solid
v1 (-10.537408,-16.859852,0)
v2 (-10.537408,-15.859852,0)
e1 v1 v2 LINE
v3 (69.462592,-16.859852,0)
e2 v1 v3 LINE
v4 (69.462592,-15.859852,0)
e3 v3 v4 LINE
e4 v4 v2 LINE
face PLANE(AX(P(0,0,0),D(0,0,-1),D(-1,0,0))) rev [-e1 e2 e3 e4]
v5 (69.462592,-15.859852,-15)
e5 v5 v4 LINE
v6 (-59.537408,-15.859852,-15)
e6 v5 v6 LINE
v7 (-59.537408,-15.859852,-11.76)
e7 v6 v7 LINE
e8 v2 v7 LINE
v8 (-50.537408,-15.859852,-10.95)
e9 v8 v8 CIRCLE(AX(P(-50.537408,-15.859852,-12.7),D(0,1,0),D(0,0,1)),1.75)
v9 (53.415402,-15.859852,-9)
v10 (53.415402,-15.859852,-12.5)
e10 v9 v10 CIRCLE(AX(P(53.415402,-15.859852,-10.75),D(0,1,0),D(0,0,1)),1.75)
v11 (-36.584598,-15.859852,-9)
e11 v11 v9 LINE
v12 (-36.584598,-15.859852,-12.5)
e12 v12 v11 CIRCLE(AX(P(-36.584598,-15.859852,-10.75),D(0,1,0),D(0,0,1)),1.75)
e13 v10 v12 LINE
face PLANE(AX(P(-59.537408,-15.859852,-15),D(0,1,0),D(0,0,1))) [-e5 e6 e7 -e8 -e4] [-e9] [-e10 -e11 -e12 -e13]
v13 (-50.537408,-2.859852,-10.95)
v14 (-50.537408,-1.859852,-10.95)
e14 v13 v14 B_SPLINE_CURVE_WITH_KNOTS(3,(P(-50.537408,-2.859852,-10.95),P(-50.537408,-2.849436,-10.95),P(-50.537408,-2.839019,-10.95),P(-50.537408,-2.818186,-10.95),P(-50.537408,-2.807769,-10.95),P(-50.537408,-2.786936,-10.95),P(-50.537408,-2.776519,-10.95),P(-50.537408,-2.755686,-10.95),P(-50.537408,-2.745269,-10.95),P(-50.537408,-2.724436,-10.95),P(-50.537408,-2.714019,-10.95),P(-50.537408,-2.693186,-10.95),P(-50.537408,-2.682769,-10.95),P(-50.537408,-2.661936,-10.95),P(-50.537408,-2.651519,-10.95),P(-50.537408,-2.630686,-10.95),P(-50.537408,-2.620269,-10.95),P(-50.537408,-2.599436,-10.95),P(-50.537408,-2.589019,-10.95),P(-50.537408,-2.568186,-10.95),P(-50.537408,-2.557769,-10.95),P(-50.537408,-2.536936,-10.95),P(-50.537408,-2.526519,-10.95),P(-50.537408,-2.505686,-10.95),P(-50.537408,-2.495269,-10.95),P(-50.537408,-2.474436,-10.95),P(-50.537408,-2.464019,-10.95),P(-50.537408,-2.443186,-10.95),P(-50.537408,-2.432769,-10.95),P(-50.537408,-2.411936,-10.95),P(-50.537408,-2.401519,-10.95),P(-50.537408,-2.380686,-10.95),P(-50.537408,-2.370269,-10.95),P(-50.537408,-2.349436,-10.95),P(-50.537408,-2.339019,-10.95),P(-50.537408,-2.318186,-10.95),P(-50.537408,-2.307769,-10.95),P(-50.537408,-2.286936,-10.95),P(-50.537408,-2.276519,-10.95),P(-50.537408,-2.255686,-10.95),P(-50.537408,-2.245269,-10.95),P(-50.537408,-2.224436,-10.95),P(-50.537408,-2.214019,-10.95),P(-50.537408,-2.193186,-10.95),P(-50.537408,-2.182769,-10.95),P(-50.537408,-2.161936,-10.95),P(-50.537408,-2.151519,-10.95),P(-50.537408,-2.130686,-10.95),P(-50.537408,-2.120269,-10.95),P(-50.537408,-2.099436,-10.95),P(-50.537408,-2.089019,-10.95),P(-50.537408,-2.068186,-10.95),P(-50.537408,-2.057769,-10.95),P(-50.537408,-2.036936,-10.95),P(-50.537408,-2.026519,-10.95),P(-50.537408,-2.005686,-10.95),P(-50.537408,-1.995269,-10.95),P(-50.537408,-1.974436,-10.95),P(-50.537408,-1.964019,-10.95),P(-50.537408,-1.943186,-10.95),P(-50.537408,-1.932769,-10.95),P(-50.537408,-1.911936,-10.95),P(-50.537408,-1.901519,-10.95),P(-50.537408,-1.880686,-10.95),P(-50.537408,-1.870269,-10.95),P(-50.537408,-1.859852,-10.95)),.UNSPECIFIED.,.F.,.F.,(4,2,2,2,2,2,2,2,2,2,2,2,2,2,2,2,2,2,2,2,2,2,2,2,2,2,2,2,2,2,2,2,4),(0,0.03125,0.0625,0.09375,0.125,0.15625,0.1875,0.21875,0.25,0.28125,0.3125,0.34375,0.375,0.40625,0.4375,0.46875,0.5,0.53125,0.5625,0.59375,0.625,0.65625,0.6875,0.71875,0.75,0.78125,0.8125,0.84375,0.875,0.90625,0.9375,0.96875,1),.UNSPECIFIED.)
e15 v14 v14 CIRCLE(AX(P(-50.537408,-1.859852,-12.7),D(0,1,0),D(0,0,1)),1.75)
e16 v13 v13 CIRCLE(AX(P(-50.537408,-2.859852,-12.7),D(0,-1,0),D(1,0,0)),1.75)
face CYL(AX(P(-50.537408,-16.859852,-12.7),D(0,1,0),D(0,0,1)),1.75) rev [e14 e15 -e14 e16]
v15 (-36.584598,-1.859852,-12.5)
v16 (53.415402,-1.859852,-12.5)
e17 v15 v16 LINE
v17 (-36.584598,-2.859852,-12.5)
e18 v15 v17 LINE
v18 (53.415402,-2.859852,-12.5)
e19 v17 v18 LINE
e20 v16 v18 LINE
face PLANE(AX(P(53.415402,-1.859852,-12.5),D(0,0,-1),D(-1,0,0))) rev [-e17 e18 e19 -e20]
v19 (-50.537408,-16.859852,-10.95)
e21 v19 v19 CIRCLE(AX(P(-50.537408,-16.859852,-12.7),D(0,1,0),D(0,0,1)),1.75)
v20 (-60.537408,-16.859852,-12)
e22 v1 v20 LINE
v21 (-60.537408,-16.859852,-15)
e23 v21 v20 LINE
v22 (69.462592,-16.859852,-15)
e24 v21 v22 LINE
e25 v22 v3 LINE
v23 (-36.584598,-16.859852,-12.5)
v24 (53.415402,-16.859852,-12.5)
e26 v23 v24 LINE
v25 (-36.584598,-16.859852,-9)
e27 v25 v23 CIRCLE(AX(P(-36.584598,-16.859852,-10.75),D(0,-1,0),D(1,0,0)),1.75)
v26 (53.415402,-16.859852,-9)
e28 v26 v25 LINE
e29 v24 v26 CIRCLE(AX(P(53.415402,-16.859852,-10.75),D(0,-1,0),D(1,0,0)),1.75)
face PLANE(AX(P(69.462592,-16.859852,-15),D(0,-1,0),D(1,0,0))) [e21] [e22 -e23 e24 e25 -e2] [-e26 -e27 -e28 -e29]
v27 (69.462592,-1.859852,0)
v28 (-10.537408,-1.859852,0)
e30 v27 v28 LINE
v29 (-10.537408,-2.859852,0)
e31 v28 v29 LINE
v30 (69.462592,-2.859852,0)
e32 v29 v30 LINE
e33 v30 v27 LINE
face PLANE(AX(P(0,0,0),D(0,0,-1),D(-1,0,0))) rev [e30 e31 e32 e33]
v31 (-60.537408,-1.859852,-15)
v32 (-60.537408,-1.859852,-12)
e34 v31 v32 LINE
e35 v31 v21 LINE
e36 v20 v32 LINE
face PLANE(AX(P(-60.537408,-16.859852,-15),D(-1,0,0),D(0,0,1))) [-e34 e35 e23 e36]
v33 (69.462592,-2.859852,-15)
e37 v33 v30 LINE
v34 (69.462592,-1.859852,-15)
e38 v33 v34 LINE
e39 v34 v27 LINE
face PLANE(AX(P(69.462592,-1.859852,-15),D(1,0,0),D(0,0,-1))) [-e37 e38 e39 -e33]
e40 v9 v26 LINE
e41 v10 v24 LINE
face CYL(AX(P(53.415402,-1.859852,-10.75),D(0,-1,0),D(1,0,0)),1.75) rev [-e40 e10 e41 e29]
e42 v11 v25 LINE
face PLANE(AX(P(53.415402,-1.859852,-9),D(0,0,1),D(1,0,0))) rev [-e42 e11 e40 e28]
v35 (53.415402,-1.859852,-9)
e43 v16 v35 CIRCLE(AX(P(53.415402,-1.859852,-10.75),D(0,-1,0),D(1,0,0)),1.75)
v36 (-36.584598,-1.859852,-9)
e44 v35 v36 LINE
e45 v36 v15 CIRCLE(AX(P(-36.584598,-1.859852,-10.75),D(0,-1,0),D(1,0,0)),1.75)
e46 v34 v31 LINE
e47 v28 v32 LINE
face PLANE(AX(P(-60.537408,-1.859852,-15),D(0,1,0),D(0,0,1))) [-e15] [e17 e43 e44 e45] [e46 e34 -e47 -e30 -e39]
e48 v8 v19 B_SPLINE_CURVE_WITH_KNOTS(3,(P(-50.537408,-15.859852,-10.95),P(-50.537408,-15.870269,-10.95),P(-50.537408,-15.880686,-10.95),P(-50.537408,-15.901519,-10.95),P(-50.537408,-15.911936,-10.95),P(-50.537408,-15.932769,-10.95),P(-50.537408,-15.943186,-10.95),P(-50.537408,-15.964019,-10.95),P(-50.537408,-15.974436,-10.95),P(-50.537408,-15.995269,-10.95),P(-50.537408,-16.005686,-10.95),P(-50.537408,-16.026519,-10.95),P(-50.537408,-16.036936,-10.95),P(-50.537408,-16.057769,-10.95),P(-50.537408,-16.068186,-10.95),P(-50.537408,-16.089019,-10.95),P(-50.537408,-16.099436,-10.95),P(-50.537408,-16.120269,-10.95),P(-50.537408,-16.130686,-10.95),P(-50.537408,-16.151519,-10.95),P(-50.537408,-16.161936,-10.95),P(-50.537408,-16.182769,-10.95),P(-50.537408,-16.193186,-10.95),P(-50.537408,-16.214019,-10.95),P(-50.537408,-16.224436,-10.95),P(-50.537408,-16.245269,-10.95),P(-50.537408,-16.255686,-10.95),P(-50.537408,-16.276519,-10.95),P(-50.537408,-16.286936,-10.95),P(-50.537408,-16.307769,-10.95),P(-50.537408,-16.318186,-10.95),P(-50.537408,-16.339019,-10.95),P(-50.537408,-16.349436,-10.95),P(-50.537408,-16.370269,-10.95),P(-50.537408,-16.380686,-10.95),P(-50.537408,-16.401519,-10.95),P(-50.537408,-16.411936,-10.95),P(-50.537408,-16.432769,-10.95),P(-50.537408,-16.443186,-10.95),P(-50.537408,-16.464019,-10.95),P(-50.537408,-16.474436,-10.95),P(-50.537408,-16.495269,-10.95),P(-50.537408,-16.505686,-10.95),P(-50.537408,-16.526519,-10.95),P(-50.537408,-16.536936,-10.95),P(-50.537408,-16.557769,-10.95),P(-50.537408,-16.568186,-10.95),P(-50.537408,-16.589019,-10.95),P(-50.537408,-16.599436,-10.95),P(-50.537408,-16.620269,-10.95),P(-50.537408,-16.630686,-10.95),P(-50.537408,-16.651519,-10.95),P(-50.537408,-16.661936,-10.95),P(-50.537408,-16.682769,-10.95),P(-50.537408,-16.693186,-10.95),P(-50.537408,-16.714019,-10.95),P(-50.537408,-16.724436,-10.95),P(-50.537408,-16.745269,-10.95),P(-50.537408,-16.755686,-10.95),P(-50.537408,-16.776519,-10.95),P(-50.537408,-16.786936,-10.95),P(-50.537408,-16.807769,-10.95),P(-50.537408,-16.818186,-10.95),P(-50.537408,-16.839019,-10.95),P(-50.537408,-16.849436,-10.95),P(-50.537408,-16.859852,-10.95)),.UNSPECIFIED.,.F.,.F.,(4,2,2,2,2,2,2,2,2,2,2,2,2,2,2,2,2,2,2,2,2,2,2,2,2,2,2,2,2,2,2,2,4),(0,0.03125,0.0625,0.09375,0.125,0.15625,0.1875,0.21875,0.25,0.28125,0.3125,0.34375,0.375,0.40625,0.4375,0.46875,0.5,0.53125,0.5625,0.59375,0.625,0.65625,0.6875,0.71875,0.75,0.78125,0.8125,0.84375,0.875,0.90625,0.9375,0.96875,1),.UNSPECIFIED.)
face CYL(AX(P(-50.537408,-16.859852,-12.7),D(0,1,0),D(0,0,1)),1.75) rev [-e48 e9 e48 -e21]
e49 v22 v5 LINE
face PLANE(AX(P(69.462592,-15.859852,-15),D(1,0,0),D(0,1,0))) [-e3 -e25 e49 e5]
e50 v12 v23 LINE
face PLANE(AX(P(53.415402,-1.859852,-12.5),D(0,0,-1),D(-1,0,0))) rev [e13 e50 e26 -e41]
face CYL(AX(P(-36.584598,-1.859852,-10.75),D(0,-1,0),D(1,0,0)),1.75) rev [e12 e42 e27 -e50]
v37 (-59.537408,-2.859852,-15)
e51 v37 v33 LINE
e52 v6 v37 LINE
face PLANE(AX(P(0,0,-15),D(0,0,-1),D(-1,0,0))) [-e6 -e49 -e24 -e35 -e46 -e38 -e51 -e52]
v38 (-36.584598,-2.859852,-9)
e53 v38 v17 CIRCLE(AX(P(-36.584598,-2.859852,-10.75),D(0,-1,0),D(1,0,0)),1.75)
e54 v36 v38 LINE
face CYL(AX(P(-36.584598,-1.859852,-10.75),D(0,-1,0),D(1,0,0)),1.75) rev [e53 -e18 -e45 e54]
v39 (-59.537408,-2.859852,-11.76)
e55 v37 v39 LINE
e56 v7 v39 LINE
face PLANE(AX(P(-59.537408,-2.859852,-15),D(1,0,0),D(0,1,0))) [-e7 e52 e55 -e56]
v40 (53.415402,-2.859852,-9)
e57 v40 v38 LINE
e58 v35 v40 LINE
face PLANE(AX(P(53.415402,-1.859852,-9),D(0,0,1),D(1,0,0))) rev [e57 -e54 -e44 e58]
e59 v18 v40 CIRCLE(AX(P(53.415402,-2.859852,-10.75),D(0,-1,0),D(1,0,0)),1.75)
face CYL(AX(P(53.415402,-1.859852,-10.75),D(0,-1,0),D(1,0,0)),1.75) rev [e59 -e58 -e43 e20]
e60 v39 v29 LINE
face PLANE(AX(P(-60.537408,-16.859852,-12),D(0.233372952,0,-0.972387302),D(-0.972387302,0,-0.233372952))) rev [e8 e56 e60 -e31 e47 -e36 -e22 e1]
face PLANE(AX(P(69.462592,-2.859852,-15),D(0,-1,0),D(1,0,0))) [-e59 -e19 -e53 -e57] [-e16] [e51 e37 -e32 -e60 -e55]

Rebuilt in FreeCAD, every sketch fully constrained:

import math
import FreeCAD as App
import Part
import Sketcher

doc = App.newDocument("Part")
body = doc.addObject("PartDesign::Body", "Body")

# Sketch on XY plane
sketch1 = doc.addObject("Sketcher::SketchObject", "Sketch")
body.addObject(sketch1)
sketch1.AttachmentSupport = (doc.XY_Plane, [""])
sketch1.MapMode = "FlatFace"
sketch1.addGeometry([
    Part.LineSegment(App.Vector(69.5, -1.9, 0), App.Vector(-60.5, -1.9, 0)),  # 0
    Part.LineSegment(App.Vector(-60.5, -1.9, 0), App.Vector(-60.5, -16.9, 0)),  # 1
    Part.LineSegment(App.Vector(-60.5, -16.9, 0), App.Vector(69.5, -16.9, 0)),  # 2
    Part.LineSegment(App.Vector(69.5, -16.9, 0), App.Vector(69.5, -15.9, 0)),  # 3
    Part.LineSegment(App.Vector(69.5, -15.9, 0), App.Vector(-59.5, -15.9, 0)),  # 4
    Part.LineSegment(App.Vector(-59.5, -15.9, 0), App.Vector(-59.5, -2.9, 0)),  # 5
    Part.LineSegment(App.Vector(-59.5, -2.9, 0), App.Vector(69.5, -2.9, 0)),  # 6
    Part.LineSegment(App.Vector(69.5, -2.9, 0), App.Vector(69.5, -1.9, 0)),  # 7
], False)
sketch1.addConstraint([
    Sketcher.Constraint("Coincident", 0, 2, 1, 1),
    Sketcher.Constraint("Coincident", 1, 2, 2, 1),
    Sketcher.Constraint("Coincident", 2, 2, 3, 1),
    Sketcher.Constraint("Coincident", 3, 2, 4, 1),
    Sketcher.Constraint("Coincident", 4, 2, 5, 1),
    Sketcher.Constraint("Coincident", 5, 2, 6, 1),
    Sketcher.Constraint("Coincident", 6, 2, 7, 1),
    Sketcher.Constraint("Coincident", 7, 2, 0, 1),
    Sketcher.Constraint("Horizontal", 0),
    Sketcher.Constraint("Vertical", 1),
    Sketcher.Constraint("Horizontal", 2),
    Sketcher.Constraint("Vertical", 3),
    Sketcher.Constraint("Horizontal", 4),
    Sketcher.Constraint("Vertical", 5),
    Sketcher.Constraint("Horizontal", 6),
    Sketcher.Constraint("Vertical", 7),
    Sketcher.Constraint("Vertical", 3, 2, 6, 2),
    Sketcher.Constraint("Equal", 3, 7),
    Sketcher.Constraint("DistanceX", 0, 2, 0, 1, 130.0),
    Sketcher.Constraint("DistanceX", 4, 2, 4, 1, 129.0),
    Sketcher.Constraint("DistanceY", 1, 2, 1, 1, 15.0),
    Sketcher.Constraint("DistanceY", 3, 1, 3, 2, 1.0),
    Sketcher.Constraint("DistanceX", 0, 2, -1, 1, 60.537408),
    Sketcher.Constraint("DistanceY", 0, 2, -1, 1, 1.859852),
])
pad1 = doc.addObject("PartDesign::Pad", "Pad")
body.addObject(pad1)
pad1.Profile = sketch1
pad1.Length = 15
pad1.Reversed = True

# Sketch on XZ plane
sketch2 = doc.addObject("Sketcher::SketchObject", "Sketch001")
body.addObject(sketch2)
sketch2.AttachmentSupport = (doc.XZ_Plane, [""])
sketch2.MapMode = "FlatFace"
sketch2.AttachmentOffset = App.Placement(App.Vector(0, 0, 1.859852), App.Rotation())
sketch2.addGeometry([
    Part.LineSegment(App.Vector(-11, 0, 0), App.Vector(-61, -12, 0)),
    Part.LineSegment(App.Vector(-61, -12, 0), App.Vector(-61, 10, 0)),
    Part.LineSegment(App.Vector(-61, 10, 0), App.Vector(-11, 10, 0)),
    Part.LineSegment(App.Vector(-11, 10, 0), App.Vector(-11, 0, 0)),
], False)
sketch2.addConstraint([
    Sketcher.Constraint("Coincident", 0, 2, 1, 1),
    Sketcher.Constraint("Coincident", 1, 2, 2, 1),
    Sketcher.Constraint("Coincident", 2, 2, 3, 1),
    Sketcher.Constraint("Coincident", 3, 2, 0, 1),
    Sketcher.Constraint("Vertical", 1),
    Sketcher.Constraint("Horizontal", 2),
    Sketcher.Constraint("Vertical", 3),
    Sketcher.Constraint("PointOnObject", 3, 2, -1),
    Sketcher.Constraint("DistanceX", 2, 1, 2, 2, 50.0),
    Sketcher.Constraint("DistanceY", 0, 2, -1, 1, 12.0),
    Sketcher.Constraint("DistanceY", 1, 1, 1, 2, 22.064923),
    Sketcher.Constraint("DistanceX", 0, 2, -1, 1, 60.537408),
])
pocket1 = doc.addObject("PartDesign::Pocket", "Pocket")
body.addObject(pocket1)
pocket1.Profile = sketch2
pocket1.Type = "ThroughAll"
pocket1.Reversed = True

# Sketch on XZ plane
sketch3 = doc.addObject("Sketcher::SketchObject", "Sketch002")
body.addObject(sketch3)
sketch3.AttachmentSupport = (doc.XZ_Plane, [""])
sketch3.MapMode = "FlatFace"
sketch3.AttachmentOffset = App.Placement(App.Vector(0, 0, 1.859852), App.Rotation())
sketch3.addGeometry(Part.Circle(App.Vector(-50.5, -12.7, 0), App.Vector(0, 0, 1), 1.8), False)
sketch3.addConstraint([
    Sketcher.Constraint("Diameter", 0, 3.5),
    Sketcher.Constraint("DistanceY", 0, 3, -1, 1, 12.7),
    Sketcher.Constraint("DistanceX", 0, 3, -1, 1, 50.537408),
])
pocket2 = doc.addObject("PartDesign::Pocket", "Pocket001")
body.addObject(pocket2)
pocket2.Profile = sketch3
pocket2.Type = "ThroughAll"
pocket2.Reversed = True

# Sketch on XZ plane
sketch4 = doc.addObject("Sketcher::SketchObject", "Sketch003")
body.addObject(sketch4)
sketch4.AttachmentSupport = (doc.XZ_Plane, [""])
sketch4.MapMode = "FlatFace"
sketch4.AttachmentOffset = App.Placement(App.Vector(0, 0, 16.859852), App.Rotation())
sketch4.addGeometry([
    Part.LineSegment(App.Vector(-36.6, -12.5, 0), App.Vector(53.4, -12.5, 0)),
    Part.ArcOfCircle(Part.Circle(App.Vector(53.4, -10.8, 0), App.Vector(0, 0, 1), 1.8), math.radians(-90), math.radians(90)),
    Part.LineSegment(App.Vector(53.4, -9, 0), App.Vector(-36.6, -9, 0)),
    Part.ArcOfCircle(Part.Circle(App.Vector(-36.6, -10.8, 0), App.Vector(0, 0, 1), 1.8), math.radians(90), math.radians(270)),
], False)
sketch4.addConstraint([
    Sketcher.Constraint("Tangent", 0, 2, 1, 1),
    Sketcher.Constraint("Tangent", 1, 2, 2, 1),
    Sketcher.Constraint("Tangent", 2, 2, 3, 1),
    Sketcher.Constraint("Tangent", 3, 2, 0, 1),
    Sketcher.Constraint("Horizontal", 0),
    Sketcher.Constraint("Horizontal", 2),
    Sketcher.Constraint("DistanceX", 0, 1, 0, 2, 90.0),
    Sketcher.Constraint("Radius", 1, 1.75),
    Sketcher.Constraint("DistanceY", 1, 2, -1, 1, 9.0),
    Sketcher.Constraint("DistanceX", -1, 1, 1, 3, 53.415402),
])
pocket3 = doc.addObject("PartDesign::Pocket", "Pocket002")
body.addObject(pocket3)
pocket3.Profile = sketch4
pocket3.Type = "ThroughAll"

doc.recompute()
